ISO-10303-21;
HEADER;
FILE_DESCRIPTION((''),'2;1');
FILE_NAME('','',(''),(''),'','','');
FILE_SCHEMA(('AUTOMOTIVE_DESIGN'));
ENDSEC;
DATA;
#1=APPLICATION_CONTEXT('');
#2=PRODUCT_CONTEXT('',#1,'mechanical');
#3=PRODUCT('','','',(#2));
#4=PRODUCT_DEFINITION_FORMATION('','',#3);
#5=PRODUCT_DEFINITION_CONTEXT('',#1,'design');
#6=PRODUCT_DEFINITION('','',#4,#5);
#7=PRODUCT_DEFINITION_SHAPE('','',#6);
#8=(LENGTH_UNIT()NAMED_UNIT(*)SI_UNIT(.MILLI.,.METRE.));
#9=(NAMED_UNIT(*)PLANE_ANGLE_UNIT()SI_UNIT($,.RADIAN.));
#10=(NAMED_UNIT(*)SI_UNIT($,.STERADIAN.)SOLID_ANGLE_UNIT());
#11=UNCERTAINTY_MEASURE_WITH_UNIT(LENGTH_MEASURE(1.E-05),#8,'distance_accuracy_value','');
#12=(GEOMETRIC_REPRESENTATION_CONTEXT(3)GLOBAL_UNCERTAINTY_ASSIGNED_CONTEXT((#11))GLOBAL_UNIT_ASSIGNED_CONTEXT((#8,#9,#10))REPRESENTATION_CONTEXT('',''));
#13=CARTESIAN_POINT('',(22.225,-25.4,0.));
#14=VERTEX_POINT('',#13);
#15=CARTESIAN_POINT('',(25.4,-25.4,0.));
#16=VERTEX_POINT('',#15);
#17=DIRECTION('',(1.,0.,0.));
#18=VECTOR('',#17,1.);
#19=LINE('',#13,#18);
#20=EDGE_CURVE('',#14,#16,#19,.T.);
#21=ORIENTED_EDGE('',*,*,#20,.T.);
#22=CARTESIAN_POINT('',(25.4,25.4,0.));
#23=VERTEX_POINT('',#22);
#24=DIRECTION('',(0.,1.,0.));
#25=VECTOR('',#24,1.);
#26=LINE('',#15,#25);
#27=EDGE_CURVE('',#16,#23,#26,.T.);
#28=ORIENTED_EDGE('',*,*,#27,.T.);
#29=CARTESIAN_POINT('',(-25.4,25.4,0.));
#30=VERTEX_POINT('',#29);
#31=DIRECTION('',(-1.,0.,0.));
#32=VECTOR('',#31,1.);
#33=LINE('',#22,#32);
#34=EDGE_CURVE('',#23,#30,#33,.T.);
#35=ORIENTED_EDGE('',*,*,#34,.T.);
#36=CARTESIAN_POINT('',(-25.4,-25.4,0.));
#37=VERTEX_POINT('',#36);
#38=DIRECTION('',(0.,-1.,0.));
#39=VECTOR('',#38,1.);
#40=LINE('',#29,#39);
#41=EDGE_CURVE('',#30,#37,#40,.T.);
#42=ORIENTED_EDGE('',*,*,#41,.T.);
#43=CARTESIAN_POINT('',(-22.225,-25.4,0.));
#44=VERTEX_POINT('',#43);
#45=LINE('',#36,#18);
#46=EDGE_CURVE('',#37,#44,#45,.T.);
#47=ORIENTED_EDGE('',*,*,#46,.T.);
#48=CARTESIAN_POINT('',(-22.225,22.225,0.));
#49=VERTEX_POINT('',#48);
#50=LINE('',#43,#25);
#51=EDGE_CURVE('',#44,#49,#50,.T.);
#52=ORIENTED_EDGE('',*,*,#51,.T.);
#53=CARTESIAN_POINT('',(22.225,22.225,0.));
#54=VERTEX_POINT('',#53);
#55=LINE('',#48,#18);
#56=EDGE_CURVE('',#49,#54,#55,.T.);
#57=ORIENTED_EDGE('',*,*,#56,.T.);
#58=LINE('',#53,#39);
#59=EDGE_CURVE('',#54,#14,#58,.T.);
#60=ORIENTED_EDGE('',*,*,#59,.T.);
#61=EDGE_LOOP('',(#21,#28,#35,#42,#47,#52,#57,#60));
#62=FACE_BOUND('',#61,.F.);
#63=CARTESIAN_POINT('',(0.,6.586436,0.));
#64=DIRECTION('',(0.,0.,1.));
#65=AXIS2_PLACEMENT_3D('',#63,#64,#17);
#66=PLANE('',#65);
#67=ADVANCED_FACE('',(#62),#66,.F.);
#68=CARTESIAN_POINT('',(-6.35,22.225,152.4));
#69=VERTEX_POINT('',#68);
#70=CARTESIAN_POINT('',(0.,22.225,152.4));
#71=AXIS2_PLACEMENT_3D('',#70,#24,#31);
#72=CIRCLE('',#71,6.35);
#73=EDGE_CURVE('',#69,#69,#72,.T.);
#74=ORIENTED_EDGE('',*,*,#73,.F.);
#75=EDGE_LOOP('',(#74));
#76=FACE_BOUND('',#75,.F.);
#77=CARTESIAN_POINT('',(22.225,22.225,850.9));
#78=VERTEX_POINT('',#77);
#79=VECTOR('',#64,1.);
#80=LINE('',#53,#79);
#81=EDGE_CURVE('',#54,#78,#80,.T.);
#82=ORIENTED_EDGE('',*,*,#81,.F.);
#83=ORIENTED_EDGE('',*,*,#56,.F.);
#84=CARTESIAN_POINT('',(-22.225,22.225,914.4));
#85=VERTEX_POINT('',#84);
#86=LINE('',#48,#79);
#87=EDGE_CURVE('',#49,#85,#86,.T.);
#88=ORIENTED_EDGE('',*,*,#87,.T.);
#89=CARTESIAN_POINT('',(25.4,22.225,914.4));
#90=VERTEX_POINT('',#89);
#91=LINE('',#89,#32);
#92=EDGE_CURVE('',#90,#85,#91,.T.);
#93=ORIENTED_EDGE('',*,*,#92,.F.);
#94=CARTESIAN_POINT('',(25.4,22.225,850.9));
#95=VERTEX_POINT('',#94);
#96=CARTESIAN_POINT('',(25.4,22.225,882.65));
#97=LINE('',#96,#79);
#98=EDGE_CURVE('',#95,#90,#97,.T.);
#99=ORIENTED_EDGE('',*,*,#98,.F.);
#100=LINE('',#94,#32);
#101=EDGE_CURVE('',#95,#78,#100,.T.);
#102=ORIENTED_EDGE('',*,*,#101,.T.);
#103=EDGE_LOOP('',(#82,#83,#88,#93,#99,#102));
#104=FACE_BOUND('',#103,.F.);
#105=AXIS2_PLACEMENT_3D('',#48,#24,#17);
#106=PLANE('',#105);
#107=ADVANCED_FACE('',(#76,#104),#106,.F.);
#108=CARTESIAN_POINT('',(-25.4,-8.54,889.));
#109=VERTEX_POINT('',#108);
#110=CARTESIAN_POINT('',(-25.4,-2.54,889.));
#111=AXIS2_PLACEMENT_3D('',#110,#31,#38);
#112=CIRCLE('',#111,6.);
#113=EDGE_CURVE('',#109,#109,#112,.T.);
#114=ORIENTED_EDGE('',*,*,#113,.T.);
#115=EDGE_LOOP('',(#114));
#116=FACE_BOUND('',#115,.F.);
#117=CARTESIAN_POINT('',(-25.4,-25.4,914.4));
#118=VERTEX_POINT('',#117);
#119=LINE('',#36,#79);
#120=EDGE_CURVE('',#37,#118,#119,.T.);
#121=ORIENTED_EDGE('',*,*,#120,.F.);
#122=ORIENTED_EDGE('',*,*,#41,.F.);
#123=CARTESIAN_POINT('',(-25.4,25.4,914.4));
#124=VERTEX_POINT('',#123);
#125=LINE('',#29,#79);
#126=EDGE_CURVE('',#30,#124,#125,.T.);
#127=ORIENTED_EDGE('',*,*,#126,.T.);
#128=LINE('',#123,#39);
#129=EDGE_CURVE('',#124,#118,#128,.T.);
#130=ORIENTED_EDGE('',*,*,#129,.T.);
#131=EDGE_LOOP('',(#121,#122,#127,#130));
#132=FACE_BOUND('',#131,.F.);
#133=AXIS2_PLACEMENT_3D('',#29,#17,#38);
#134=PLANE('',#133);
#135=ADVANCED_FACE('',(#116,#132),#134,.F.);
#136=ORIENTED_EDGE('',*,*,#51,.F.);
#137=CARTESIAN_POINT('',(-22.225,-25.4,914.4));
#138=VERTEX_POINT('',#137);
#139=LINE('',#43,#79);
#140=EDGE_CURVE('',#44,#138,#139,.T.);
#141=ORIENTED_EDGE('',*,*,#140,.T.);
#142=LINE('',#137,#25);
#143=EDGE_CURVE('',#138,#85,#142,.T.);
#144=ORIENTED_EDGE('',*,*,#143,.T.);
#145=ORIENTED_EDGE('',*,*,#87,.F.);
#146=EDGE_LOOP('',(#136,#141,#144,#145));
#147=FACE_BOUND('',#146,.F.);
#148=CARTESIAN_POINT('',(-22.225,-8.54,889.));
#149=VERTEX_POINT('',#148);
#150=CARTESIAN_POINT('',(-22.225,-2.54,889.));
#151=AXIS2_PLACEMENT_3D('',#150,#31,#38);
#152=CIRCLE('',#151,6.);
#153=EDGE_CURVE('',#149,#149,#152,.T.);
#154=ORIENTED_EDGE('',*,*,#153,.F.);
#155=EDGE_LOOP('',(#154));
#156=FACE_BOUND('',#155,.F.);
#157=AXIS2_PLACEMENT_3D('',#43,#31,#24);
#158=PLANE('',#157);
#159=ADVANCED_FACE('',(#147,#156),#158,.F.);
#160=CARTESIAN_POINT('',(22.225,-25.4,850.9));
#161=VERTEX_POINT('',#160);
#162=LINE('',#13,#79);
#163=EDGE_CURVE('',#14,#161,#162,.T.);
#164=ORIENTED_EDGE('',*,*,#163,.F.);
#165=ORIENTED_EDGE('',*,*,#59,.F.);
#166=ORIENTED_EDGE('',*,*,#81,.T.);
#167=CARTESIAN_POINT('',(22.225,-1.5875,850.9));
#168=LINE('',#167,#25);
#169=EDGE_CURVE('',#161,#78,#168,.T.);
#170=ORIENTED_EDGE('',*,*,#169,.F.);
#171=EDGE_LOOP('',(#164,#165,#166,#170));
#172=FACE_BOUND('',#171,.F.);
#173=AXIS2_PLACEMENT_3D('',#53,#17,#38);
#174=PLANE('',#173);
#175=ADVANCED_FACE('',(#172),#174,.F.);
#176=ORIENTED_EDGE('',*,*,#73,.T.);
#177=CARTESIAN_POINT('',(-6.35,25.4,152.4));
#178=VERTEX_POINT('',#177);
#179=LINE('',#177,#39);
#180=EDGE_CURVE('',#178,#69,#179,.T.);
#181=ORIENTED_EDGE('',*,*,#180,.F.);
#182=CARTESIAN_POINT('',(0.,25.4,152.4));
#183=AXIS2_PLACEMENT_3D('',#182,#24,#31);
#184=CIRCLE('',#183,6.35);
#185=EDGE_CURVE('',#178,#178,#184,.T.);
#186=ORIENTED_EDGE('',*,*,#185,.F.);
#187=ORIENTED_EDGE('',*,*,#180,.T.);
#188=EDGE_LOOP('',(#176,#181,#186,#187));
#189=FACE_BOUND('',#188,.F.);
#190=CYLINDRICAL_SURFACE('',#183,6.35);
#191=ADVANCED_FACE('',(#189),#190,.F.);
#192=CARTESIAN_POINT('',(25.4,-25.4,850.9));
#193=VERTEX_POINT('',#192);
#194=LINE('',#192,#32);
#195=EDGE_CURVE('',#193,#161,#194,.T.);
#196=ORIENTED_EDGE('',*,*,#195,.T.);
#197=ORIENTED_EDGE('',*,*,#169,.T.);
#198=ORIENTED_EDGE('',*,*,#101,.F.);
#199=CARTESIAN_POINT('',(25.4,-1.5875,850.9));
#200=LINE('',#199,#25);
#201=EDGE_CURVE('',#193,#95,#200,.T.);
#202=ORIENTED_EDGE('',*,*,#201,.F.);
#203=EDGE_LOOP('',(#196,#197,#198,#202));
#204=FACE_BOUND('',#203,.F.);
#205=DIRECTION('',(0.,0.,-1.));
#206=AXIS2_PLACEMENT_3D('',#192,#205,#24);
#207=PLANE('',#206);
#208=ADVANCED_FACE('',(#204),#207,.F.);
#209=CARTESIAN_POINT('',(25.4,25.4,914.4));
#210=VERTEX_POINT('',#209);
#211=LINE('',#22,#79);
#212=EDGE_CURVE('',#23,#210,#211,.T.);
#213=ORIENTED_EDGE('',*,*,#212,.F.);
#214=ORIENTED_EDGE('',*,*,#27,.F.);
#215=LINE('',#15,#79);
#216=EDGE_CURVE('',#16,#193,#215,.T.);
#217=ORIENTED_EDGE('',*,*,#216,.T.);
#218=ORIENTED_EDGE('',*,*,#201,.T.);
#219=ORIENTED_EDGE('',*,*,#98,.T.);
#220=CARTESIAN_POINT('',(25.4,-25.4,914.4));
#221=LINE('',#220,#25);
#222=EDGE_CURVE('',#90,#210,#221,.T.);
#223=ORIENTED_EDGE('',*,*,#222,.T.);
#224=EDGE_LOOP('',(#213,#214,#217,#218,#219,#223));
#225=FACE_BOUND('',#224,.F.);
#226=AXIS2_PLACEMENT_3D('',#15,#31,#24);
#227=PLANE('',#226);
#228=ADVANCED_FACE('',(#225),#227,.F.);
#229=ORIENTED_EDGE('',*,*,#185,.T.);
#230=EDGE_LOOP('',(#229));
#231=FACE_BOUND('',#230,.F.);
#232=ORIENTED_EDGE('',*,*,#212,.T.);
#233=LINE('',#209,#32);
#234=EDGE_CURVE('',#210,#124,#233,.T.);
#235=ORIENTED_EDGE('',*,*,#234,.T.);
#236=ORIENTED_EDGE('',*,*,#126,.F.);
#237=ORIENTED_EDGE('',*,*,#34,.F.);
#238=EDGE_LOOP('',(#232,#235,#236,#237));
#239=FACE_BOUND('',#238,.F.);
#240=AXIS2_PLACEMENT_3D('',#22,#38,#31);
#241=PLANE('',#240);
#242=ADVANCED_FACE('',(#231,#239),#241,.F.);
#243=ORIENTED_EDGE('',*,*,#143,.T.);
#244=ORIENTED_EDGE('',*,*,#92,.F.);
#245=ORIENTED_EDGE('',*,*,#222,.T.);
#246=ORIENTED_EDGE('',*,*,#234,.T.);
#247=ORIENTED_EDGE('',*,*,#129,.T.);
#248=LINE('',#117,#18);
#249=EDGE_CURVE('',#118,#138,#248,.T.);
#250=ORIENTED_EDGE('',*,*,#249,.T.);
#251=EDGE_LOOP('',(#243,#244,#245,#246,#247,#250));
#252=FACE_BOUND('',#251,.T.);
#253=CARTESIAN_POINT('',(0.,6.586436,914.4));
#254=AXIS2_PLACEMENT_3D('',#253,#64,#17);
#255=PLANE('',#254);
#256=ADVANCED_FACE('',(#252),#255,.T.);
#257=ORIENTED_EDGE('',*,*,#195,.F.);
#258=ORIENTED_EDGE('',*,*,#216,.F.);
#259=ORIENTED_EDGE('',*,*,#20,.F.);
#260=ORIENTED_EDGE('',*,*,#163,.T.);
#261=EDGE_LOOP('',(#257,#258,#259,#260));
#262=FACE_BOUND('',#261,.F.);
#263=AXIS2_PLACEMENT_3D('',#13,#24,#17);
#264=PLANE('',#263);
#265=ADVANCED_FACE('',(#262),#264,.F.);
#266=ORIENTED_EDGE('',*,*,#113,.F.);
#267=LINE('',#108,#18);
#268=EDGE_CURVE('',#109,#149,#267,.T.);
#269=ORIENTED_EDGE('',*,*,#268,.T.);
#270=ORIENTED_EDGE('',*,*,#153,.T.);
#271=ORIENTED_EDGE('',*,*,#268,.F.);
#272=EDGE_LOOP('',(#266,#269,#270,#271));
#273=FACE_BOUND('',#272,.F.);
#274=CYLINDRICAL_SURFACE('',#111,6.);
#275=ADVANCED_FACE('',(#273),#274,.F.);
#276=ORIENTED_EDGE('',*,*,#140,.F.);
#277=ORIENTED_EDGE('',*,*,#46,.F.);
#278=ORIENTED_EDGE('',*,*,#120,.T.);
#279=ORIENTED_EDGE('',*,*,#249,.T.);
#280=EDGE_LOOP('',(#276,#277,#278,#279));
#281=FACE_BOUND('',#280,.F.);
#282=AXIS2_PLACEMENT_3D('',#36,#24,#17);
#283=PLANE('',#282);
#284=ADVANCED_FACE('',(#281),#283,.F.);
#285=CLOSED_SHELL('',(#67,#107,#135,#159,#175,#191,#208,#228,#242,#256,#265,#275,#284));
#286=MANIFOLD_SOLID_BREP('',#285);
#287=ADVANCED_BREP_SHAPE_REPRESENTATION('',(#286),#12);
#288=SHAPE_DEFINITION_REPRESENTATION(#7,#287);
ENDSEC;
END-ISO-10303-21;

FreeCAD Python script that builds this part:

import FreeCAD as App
import Part
import Sketcher

V = App.Vector
Q = App.Units.Quantity

doc = App.newDocument("Part")
params = doc.addObject("Spreadsheet::Sheet", "Params")
for row, (alias, value) in enumerate([
    ("sketch1_width", "2 in"),
    ("sketch1_width2", "1.75 in"),
    ("sketch1_height", "1.875 in"),
    ("pad1_length", "36 in"),
    ("pocket1_length", "0.125 in"),
    ("sketch3_height", "2.5 in"),
    ("sketch3_width", "1.875 in"),
    ("pocket2_length", "1 in"),
    ("sketch4_diameter", "0.5 in"),
    ("pocket3_length", "1 in"),
], start=1):
    params.set(f"A{row}", alias)
    params.set(f"B{row}", "=" + value)
    params.setAlias(f"B{row}", alias)

body = doc.addObject("PartDesign::Body", "Body")

# Sketch on XY plane
sketch1 = body.newObject("Sketcher::SketchObject", "Sketch")
sketch1.AttachmentSupport = (doc.getObject("XY_Plane"), [""])
sketch1.MapMode = "FlatFace"
sketch1.addGeometry(Part.LineSegment(V(22.2, -25.4, 0), V(25.4, -25.4, 0)), False)
sketch1.addGeometry(Part.LineSegment(V(25.4, -25.4, 0), V(25.4, 25.4, 0)), False)
sketch1.addGeometry(Part.LineSegment(V(25.4, 25.4, 0), V(-25.4, 25.4, 0)), False)
sketch1.addGeometry(Part.LineSegment(V(-25.4, 25.4, 0), V(-25.4, -25.4, 0)), False)
sketch1.addGeometry(Part.LineSegment(V(-25.4, -25.4, 0), V(-22.2, -25.4, 0)), False)
sketch1.addGeometry(Part.LineSegment(V(-22.2, -25.4, 0), V(-22.2, 22.2, 0)), False)
sketch1.addGeometry(Part.LineSegment(V(-22.2, 22.2, 0), V(22.2, 22.2, 0)), False)
sketch1.addGeometry(Part.LineSegment(V(22.2, 22.2, 0), V(22.2, -25.4, 0)), False)
sketch1.addConstraint(Sketcher.Constraint("Coincident", 0, 2, 1, 1))
sketch1.addConstraint(Sketcher.Constraint("Coincident", 1, 2, 2, 1))
sketch1.addConstraint(Sketcher.Constraint("Coincident", 2, 2, 3, 1))
sketch1.addConstraint(Sketcher.Constraint("Coincident", 3, 2, 4, 1))
sketch1.addConstraint(Sketcher.Constraint("Coincident", 4, 2, 5, 1))
sketch1.addConstraint(Sketcher.Constraint("Coincident", 5, 2, 6, 1))
sketch1.addConstraint(Sketcher.Constraint("Coincident", 6, 2, 7, 1))
sketch1.addConstraint(Sketcher.Constraint("Coincident", 7, 2, 0, 1))
sketch1.addConstraint(Sketcher.Constraint("Horizontal", 0))
sketch1.addConstraint(Sketcher.Constraint("Vertical", 1))
sketch1.addConstraint(Sketcher.Constraint("Horizontal", 2))
sketch1.addConstraint(Sketcher.Constraint("Vertical", 3))
sketch1.addConstraint(Sketcher.Constraint("Horizontal", 4))
sketch1.addConstraint(Sketcher.Constraint("Vertical", 5))
sketch1.addConstraint(Sketcher.Constraint("Horizontal", 6))
sketch1.addConstraint(Sketcher.Constraint("Vertical", 7))
sketch1.addConstraint(Sketcher.Constraint("Symmetric", 0, 2, 2, 2, -1, 1))
sketch1.addConstraint(Sketcher.Constraint("Symmetric", 4, 2, 7, 2, -2))
sketch1.addConstraint(Sketcher.Constraint("Equal", 2, 1))
sketch1.addConstraint(Sketcher.Constraint("DistanceX", 2, 2, 2, 1, Q("2 in")))
sketch1.addConstraint(Sketcher.Constraint("DistanceX", 6, 1, 6, 2, Q("1.75 in")))
sketch1.addConstraint(Sketcher.Constraint("DistanceY", 5, 1, 5, 2, Q("1.875 in")))
sketch1.setExpression("Constraints[19]", "Params.sketch1_width")
sketch1.setExpression("Constraints[20]", "Params.sketch1_width2")
sketch1.setExpression("Constraints[21]", "Params.sketch1_height")
pad1 = body.newObject("PartDesign::Pad", "Pad")
pad1.Profile = sketch1
pad1.setExpression("Length", "Params.pad1_length")

# Sketch on YZ plane
sketch2 = body.newObject("Sketcher::SketchObject", "Sketch001")
sketch2.AttachmentSupport = (doc.getObject("YZ_Plane"), [""])
sketch2.MapMode = "FlatFace"
sketch2.AttachmentOffset = App.Placement(V(0, 0, -1 * 25.4), App.Rotation())
sketch2.addGeometry(Part.Circle(V(-3, 889, 0), V(0, 0, 1), 6), False)
sketch2.addConstraint(Sketcher.Constraint("DistanceY", -1, 1, 0, 3, Q("35 in")))
sketch2.addConstraint(Sketcher.Constraint("DistanceX", 0, 3, -1, 1, Q("0.1 in")))
sketch2.addConstraint(Sketcher.Constraint("Diameter", 0, 12.0))
pocket1 = body.newObject("PartDesign::Pocket", "Pocket")
pocket1.Profile = sketch2
pocket1.setExpression("Length", "Params.pocket1_length")
pocket1.Reversed = True

# Sketch on YZ plane
sketch3 = body.newObject("Sketcher::SketchObject", "Sketch002")
sketch3.AttachmentSupport = (doc.getObject("YZ_Plane"), [""])
sketch3.MapMode = "FlatFace"
sketch3.AttachmentOffset = App.Placement(V(0, 0, 1 * 25.4), App.Rotation())
sketch3.addGeometry(Part.LineSegment(V(-25, 914, 0), V(-25, 851, 0)), False)
sketch3.addGeometry(Part.LineSegment(V(-25, 851, 0), V(22, 851, 0)), False)
sketch3.addGeometry(Part.LineSegment(V(22, 851, 0), V(22, 914, 0)), False)
sketch3.addGeometry(Part.LineSegment(V(22, 914, 0), V(-25, 914, 0)), False)
sketch3.addConstraint(Sketcher.Constraint("Coincident", 0, 2, 1, 1))
sketch3.addConstraint(Sketcher.Constraint("Coincident", 1, 2, 2, 1))
sketch3.addConstraint(Sketcher.Constraint("Coincident", 2, 2, 3, 1))
sketch3.addConstraint(Sketcher.Constraint("Coincident", 3, 2, 0, 1))
sketch3.addConstraint(Sketcher.Constraint("Vertical", 0))
sketch3.addConstraint(Sketcher.Constraint("Horizontal", 1))
sketch3.addConstraint(Sketcher.Constraint("Vertical", 2))
sketch3.addConstraint(Sketcher.Constraint("Horizontal", 3))
sketch3.addConstraint(Sketcher.Constraint("DistanceY", 0, 2, 0, 1, Q("2.5 in")))
sketch3.addConstraint(Sketcher.Constraint("DistanceX", 0, 2, -1, 1, Q("1 in")))
sketch3.addConstraint(Sketcher.Constraint("DistanceY", -1, 1, 2, 2, Q("36 in")))
sketch3.addConstraint(Sketcher.Constraint("DistanceX", 1, 1, 1, 2, Q("1.875 in")))
sketch3.setExpression("Constraints[8]", "Params.sketch3_height")
sketch3.setExpression("Constraints[11]", "Params.sketch3_width")
pocket2 = body.newObject("PartDesign::Pocket", "Pocket001")
pocket2.Profile = sketch3
pocket2.setExpression("Length", "Params.pocket2_length")

# Sketch on XZ plane
sketch4 = body.newObject("Sketcher::SketchObject", "Sketch003")
sketch4.AttachmentSupport = (doc.getObject("XZ_Plane"), [""])
sketch4.MapMode = "FlatFace"
sketch4.AttachmentOffset = App.Placement(V(0, 0, -1 * 25.4), App.Rotation())
sketch4.addGeometry(Part.Circle(V(0, 152, 0), V(0, 0, 1), 6), False)
sketch4.addConstraint(Sketcher.Constraint("PointOnObject", 0, 3, -2))
sketch4.addConstraint(Sketcher.Constraint("Diameter", 0, Q("0.5 in")))
sketch4.addConstraint(Sketcher.Constraint("DistanceY", -1, 1, 0, 3, Q("6 in")))
sketch4.setExpression("Constraints[1]", "Params.sketch4_diameter")
pocket3 = body.newObject("PartDesign::Pocket", "Pocket002")
pocket3.Profile = sketch4
pocket3.setExpression("Length", "Params.pocket3_length")
pocket3.Reversed = True

doc.recompute()
